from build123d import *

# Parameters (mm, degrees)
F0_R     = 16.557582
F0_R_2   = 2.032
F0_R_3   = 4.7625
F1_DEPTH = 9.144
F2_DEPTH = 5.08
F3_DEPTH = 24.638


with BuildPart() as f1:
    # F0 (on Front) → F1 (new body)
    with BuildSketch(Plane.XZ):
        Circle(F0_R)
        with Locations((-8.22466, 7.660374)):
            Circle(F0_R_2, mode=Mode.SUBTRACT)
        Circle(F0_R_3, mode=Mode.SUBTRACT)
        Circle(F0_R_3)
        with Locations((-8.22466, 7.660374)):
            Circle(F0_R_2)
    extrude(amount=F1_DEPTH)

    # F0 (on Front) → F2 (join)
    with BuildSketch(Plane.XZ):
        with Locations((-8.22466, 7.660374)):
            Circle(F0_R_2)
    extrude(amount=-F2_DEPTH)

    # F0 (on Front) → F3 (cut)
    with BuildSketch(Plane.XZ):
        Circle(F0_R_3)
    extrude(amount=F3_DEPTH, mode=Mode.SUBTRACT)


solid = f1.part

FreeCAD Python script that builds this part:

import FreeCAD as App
import Part
import Sketcher
from FreeCAD import Vector
Q = App.Units.Quantity

doc = App.newDocument("Part")
params = doc.addObject("Spreadsheet::Sheet", "Params")
for row, (alias, value) in enumerate([
    ("pad1_length", "0.36 in"),
    ("sketch2_diameter", "0.16 in"),
    ("pad2_length", "0.2 in"),
    ("sketch3_diameter", "0.375 in"),
    ("pocket1_length", "0.97 in"),
], start=1):
    params.set(f"A{row}", alias)
    params.set(f"B{row}", "=" + value)
    params.setAlias(f"B{row}", alias)

body = doc.addObject("PartDesign::Body", "Body")

sketch1 = body.newObject("Sketcher::SketchObject", "Sketch")
sketch1.AttachmentSupport = (doc.getObject("XZ_Plane"), [""])
sketch1.MapMode = "FlatFace"
sketch1.addGeometry(Part.Circle(Vector(0, 0, 0), Vector(0, 0, 1), 17), False)
sketch1.addConstraint(Sketcher.Constraint("Coincident", 0, 3, -1, 1))
sketch1.addConstraint(Sketcher.Constraint("Diameter", 0, 33.115164))
pad1 = body.newObject("PartDesign::Pad", "Pad")
pad1.Profile = sketch1
pad1.setExpression("Length", "Params.pad1_length")

sketch2 = body.newObject("Sketcher::SketchObject", "Sketch001")
sketch2.AttachmentSupport = (doc.getObject("XZ_Plane"), [""])
sketch2.MapMode = "FlatFace"
sketch2.addGeometry(Part.Circle(Vector(-8.2, 7.7, 0), Vector(0, 0, 1), 2), False)
sketch2.addConstraint(Sketcher.Constraint("Diameter", 0, Q("0.16 in")))
sketch2.addConstraint(Sketcher.Constraint("DistanceX", 0, 3, -1, 1, 8.22466))
sketch2.addConstraint(Sketcher.Constraint("DistanceY", -1, 1, 0, 3, 7.660374))
sketch2.setExpression("Constraints[0]", "Params.sketch2_diameter")
pad2 = body.newObject("PartDesign::Pad", "Pad001")
pad2.Profile = sketch2
pad2.setExpression("Length", "Params.pad2_length")
pad2.Reversed = True

sketch3 = body.newObject("Sketcher::SketchObject", "Sketch002")
sketch3.AttachmentSupport = (doc.getObject("XZ_Plane"), [""])
sketch3.MapMode = "FlatFace"
sketch3.addGeometry(Part.Circle(Vector(0, 0, 0), Vector(0, 0, 1), 4.8), False)
sketch3.addConstraint(Sketcher.Constraint("Coincident", 0, 3, -1, 1))
sketch3.addConstraint(Sketcher.Constraint("Diameter", 0, Q("0.375 in")))
sketch3.setExpression("Constraints[1]", "Params.sketch3_diameter")
pocket1 = body.newObject("PartDesign::Pocket", "Pocket")
pocket1.Profile = sketch3
pocket1.setExpression("Length", "Params.pocket1_length")
pocket1.Reversed = True

doc.recompute()
